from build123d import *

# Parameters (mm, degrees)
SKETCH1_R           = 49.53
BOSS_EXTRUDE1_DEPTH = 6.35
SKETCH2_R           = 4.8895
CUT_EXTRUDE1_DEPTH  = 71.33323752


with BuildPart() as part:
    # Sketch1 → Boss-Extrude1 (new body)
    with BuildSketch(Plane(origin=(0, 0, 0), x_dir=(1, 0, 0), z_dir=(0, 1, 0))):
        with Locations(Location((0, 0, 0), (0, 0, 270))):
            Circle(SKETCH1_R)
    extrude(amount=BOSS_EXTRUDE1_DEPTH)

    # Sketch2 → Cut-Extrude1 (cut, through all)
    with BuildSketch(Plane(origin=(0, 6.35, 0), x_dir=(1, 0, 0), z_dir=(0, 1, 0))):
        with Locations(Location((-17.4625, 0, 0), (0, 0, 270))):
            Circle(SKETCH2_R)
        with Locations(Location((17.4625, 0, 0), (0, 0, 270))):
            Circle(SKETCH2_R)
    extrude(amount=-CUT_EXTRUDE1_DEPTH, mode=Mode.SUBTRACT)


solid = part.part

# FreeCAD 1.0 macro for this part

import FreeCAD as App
import Part
import Sketcher
Q = App.Units.Quantity

doc = App.newDocument("Part")
body = doc.addObject("PartDesign::Body", "Body")

sketch1 = doc.addObject("Sketcher::SketchObject", "Sketch")
body.addObject(sketch1)
sketch1.AttachmentSupport = (doc.XZ_Plane, [""])
sketch1.MapMode = "FlatFace"
sketch1.addGeometry(Part.Circle(App.Vector(0, 0, 0), App.Vector(0, 0, 1), 50), False)
sketch1.addConstraint([
    Sketcher.Constraint("Coincident", 0, 3, -1, 1),
    Sketcher.Constraint("Diameter", 0, Q("3.9 in")),
])
pad1 = doc.addObject("PartDesign::Pad", "Pad")
body.addObject(pad1)
pad1.Profile = sketch1
pad1.Length = Q("0.25 in")
pad1.Reversed = True

sketch2 = doc.addObject("Sketcher::SketchObject", "Sketch001")
body.addObject(sketch2)
sketch2.AttachmentSupport = (doc.XZ_Plane, [""])
sketch2.MapMode = "FlatFace"
sketch2.AttachmentOffset = App.Placement(App.Vector(0, 0, -0.25 * 25.4), App.Rotation())
sketch2.addGeometry([
    Part.Circle(App.Vector(-17.5, 0, 0), App.Vector(0, 0, 1), 4.9),
    Part.Circle(App.Vector(17.5, 0, 0), App.Vector(0, 0, 1), 4.9),
], False)
sketch2.addConstraint([
    Sketcher.Constraint("Equal", 0, 1),
    Sketcher.Constraint("Symmetric", 0, 3, 1, 3, -1, 1),
    Sketcher.Constraint("PointOnObject", 0, 3, -1),
    Sketcher.Constraint("Diameter", 0, Q("0.385 in")),
    Sketcher.Constraint("DistanceX", 0, 3, -1, 1, Q("0.6875 in")),
])
pocket1 = doc.addObject("PartDesign::Pocket", "Pocket")
body.addObject(pocket1)
pocket1.Profile = sketch2
pocket1.Type = "ThroughAll"
pocket1.Reversed = True

doc.recompute()
